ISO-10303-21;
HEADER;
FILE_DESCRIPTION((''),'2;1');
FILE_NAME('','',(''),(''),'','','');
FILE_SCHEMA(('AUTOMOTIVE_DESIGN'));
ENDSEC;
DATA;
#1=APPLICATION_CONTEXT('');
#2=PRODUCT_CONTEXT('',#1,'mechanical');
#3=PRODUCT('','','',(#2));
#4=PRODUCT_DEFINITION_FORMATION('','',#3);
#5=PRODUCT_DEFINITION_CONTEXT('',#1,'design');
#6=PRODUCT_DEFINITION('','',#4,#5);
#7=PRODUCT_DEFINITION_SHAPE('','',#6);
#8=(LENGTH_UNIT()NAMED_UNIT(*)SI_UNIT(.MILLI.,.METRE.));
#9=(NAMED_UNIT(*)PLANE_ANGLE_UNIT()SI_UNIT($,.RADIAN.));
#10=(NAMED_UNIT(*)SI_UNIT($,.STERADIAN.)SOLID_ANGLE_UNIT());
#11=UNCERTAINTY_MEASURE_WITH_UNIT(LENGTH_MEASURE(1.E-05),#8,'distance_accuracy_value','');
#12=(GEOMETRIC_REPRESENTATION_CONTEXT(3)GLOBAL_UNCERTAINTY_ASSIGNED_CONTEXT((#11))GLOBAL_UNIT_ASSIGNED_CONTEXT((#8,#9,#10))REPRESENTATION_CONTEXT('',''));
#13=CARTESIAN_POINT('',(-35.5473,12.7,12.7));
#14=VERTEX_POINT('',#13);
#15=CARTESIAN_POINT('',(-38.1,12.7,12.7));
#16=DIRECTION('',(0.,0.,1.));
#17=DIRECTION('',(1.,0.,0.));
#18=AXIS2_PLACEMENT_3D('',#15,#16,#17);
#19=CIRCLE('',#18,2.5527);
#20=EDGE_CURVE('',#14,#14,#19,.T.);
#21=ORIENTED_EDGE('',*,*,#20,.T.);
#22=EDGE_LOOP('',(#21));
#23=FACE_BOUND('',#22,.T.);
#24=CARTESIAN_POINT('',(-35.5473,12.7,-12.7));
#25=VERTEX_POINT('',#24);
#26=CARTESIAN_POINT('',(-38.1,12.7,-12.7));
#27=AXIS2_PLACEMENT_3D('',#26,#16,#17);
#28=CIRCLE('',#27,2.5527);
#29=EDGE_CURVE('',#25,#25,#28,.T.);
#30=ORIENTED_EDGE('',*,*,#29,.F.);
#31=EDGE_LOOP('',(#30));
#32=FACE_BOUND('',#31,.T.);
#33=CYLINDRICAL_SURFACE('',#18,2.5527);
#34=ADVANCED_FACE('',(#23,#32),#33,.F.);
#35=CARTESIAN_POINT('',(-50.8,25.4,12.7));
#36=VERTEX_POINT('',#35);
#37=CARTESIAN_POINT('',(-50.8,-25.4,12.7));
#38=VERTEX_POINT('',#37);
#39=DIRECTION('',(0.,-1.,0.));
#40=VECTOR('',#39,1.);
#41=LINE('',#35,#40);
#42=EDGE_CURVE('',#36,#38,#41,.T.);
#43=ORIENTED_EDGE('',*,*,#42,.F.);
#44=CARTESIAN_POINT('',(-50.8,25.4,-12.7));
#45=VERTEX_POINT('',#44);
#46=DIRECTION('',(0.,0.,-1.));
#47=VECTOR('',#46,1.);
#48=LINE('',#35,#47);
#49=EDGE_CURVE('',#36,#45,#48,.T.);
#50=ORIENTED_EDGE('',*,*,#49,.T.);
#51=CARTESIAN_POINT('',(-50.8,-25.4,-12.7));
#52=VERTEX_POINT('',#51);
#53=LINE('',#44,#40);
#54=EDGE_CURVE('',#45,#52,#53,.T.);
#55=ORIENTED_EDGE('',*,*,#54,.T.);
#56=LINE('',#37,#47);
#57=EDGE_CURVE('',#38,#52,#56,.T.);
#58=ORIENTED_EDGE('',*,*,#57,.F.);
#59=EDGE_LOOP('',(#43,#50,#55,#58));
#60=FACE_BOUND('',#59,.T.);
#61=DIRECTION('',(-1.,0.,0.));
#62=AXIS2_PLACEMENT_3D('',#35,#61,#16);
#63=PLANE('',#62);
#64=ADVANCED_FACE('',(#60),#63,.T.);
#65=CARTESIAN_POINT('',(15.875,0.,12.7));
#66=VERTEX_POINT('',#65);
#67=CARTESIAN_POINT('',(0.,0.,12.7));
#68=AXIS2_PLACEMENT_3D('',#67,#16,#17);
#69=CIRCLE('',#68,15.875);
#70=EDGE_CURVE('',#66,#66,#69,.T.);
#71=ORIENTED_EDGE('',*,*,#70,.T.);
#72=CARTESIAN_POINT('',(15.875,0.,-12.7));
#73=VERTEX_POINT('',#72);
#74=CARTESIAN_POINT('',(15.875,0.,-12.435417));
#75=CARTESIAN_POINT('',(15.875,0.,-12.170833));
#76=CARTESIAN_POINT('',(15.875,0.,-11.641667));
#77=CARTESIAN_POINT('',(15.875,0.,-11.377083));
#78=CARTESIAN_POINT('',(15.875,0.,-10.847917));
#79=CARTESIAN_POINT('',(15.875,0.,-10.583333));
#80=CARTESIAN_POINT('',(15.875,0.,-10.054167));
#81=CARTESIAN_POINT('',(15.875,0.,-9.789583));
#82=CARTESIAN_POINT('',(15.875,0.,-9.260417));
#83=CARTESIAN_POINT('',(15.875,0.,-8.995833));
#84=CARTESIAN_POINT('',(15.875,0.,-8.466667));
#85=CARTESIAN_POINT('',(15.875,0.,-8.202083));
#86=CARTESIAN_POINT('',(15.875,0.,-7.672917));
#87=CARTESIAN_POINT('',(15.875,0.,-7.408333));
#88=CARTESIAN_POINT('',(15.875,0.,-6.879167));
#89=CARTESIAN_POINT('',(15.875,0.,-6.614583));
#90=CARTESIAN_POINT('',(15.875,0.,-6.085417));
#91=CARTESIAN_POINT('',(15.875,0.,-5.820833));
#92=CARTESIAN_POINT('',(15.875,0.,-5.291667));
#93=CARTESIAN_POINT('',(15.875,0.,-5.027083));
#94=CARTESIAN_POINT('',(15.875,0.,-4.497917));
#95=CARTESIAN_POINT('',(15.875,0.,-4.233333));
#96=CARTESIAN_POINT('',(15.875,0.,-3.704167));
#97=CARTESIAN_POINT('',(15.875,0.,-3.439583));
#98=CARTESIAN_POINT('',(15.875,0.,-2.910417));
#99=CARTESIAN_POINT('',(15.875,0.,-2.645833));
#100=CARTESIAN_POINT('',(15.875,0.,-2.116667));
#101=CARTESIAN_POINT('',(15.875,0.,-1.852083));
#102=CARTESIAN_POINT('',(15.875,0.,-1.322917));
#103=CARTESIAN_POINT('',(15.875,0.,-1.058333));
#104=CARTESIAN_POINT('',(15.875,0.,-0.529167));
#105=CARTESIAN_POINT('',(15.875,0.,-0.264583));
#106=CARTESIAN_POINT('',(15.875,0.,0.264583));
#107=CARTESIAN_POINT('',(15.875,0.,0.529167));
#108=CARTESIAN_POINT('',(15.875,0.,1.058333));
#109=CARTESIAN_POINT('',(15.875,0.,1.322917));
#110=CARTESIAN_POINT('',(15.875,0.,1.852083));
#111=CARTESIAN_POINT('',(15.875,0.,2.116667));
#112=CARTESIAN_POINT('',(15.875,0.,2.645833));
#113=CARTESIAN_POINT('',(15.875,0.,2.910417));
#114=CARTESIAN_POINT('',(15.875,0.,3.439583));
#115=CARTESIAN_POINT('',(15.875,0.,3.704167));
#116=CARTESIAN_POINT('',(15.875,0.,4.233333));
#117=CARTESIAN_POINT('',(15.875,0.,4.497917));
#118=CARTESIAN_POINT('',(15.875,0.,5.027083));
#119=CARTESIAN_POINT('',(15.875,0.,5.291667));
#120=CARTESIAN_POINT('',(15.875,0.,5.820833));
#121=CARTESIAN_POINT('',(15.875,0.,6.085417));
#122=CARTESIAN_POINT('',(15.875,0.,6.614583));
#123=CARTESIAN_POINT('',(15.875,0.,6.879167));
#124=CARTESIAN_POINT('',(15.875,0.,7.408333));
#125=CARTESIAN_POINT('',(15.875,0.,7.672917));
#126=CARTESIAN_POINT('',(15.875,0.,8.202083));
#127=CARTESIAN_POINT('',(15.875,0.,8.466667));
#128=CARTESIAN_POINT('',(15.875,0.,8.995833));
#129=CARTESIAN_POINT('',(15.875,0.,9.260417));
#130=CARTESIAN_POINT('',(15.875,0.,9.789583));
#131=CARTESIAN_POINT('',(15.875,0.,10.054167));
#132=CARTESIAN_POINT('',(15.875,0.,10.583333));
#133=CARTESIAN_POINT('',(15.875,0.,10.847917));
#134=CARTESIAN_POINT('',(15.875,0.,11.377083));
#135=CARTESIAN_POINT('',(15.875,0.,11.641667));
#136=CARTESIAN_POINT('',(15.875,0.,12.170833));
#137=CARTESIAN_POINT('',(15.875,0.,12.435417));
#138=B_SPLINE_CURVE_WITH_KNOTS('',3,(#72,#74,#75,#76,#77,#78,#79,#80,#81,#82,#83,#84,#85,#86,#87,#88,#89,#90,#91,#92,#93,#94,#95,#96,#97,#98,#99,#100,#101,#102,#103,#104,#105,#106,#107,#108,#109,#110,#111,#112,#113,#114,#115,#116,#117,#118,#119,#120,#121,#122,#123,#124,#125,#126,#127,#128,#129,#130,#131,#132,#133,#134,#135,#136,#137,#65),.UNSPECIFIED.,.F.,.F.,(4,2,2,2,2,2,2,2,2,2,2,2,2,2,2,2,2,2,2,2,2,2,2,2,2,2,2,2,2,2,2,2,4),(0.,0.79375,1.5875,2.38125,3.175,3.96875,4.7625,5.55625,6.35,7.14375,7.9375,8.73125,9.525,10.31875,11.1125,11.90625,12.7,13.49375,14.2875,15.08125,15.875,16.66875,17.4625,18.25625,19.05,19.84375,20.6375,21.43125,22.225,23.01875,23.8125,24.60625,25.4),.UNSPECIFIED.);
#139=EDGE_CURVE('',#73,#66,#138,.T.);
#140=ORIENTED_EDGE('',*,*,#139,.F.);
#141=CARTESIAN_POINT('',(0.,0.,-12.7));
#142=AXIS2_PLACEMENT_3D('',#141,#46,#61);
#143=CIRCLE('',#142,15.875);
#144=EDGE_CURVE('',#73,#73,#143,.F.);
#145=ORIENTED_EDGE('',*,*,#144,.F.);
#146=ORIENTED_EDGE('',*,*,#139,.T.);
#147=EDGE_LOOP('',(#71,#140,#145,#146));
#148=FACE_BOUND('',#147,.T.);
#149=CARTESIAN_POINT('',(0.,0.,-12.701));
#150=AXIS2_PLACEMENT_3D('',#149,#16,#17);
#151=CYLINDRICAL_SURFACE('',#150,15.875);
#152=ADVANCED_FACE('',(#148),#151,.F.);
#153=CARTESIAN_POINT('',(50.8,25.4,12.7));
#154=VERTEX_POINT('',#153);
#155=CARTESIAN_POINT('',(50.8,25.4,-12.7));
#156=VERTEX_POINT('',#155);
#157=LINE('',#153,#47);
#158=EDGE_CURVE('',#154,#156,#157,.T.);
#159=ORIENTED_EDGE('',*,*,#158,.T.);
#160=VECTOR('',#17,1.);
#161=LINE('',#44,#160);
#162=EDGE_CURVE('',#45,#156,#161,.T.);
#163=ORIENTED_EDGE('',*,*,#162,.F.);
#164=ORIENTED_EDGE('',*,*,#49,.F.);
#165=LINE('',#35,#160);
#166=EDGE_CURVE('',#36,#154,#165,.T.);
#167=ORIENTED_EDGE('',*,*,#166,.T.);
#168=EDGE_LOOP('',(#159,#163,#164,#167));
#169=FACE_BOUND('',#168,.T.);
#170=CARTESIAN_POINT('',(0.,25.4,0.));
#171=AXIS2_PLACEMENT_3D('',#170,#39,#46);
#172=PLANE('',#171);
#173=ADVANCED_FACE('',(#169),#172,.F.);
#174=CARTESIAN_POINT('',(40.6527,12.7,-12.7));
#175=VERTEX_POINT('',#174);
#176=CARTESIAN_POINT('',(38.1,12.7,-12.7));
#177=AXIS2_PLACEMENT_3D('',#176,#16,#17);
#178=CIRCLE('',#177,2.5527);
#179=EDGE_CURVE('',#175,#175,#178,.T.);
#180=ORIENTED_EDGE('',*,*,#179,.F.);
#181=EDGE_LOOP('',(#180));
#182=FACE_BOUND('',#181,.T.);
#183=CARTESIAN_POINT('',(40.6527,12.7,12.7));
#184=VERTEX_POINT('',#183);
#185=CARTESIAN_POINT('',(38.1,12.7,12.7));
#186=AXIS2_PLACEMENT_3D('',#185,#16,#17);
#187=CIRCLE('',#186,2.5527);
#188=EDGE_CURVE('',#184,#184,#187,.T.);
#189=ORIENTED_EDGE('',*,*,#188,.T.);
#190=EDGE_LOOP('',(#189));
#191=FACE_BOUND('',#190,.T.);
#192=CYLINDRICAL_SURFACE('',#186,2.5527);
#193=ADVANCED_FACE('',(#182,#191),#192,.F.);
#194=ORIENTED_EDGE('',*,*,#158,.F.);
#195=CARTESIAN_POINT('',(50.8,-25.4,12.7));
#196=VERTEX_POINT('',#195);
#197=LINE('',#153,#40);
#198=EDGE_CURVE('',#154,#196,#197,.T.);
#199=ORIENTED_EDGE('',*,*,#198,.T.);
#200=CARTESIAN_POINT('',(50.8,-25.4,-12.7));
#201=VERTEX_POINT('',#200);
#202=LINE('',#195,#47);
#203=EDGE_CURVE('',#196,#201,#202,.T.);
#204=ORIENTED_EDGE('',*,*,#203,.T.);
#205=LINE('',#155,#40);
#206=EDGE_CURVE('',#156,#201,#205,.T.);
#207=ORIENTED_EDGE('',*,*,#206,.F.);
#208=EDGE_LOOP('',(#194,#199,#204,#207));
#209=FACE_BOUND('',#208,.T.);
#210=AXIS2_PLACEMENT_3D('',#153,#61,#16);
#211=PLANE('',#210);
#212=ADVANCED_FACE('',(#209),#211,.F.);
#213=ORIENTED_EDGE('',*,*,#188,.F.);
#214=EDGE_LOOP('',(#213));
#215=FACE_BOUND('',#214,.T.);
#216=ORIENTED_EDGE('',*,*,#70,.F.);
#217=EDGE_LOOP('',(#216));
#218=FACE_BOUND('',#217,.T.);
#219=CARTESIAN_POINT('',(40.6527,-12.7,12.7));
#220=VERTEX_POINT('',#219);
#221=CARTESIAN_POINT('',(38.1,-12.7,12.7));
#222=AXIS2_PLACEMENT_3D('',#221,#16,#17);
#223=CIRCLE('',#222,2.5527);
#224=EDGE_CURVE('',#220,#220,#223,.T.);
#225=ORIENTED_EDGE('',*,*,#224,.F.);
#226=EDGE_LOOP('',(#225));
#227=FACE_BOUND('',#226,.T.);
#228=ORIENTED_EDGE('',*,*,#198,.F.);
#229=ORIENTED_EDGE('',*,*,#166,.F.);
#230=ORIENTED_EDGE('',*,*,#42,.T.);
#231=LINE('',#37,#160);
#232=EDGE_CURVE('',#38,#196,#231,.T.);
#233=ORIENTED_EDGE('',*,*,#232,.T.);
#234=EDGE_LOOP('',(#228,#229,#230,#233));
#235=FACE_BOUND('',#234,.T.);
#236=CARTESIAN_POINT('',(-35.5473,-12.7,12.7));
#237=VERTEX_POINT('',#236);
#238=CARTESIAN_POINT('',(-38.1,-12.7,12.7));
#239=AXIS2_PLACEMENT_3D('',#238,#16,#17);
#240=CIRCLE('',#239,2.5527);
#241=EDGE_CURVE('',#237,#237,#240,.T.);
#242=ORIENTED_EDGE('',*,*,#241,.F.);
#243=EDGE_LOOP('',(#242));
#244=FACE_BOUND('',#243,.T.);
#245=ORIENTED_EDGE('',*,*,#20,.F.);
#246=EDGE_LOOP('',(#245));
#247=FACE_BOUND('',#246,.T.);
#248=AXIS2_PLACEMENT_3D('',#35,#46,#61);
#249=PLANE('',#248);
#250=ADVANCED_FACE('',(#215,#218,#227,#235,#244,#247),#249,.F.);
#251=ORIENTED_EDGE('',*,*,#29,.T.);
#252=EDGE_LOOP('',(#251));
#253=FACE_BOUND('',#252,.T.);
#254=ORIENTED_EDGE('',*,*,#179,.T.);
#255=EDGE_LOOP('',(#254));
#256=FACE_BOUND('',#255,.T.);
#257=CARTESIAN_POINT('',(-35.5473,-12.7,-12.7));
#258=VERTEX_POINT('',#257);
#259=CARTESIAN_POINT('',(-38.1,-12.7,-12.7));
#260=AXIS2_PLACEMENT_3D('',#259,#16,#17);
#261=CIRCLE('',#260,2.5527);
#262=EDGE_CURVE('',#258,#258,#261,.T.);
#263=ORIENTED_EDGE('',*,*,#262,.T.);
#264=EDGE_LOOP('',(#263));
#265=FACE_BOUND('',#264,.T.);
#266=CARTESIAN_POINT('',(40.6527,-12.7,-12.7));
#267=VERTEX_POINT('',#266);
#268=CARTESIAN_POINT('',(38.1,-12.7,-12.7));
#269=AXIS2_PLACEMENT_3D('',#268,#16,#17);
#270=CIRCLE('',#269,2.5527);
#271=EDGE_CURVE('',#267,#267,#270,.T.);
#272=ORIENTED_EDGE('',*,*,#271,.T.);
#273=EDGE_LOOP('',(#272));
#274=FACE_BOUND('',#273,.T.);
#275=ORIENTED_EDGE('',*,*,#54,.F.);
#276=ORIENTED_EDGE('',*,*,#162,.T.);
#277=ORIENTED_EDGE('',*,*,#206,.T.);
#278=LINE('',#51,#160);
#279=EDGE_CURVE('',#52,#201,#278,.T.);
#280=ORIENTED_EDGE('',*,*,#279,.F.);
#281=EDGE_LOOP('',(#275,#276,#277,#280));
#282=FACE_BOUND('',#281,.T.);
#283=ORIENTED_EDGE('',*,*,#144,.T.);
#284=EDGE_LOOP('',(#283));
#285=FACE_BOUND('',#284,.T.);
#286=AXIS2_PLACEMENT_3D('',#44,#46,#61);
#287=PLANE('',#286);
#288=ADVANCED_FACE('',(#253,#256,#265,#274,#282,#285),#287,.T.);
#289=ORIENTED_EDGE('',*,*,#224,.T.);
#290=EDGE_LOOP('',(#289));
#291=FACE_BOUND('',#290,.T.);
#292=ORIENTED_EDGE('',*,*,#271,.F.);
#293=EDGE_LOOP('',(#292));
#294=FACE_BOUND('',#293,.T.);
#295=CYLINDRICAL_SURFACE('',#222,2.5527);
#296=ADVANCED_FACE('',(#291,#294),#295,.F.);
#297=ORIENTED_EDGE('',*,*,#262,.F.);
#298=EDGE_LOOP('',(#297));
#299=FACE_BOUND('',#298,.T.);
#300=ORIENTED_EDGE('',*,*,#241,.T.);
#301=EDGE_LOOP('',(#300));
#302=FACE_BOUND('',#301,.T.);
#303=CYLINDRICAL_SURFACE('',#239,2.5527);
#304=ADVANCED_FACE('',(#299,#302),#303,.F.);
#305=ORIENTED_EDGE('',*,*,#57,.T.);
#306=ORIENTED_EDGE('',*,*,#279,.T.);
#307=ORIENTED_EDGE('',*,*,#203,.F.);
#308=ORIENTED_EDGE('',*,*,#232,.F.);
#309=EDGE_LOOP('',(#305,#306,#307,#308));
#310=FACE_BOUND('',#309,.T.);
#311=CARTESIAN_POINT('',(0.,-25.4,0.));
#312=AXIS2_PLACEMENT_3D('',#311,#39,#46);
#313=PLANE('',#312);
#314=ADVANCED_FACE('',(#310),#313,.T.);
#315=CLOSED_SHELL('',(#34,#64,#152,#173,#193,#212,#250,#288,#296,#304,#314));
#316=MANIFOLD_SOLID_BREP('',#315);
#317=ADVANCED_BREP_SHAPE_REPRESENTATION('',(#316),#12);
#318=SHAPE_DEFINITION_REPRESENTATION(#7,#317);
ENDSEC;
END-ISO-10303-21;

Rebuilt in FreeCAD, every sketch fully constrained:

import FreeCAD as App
import Part
import Sketcher
from FreeCAD import Vector
Q = App.Units.Quantity


def add_polygon(sketch, points):
    """Adds a closed chain of lines whose ends are joined by coincident constraints."""
    first, n = sketch.GeometryCount, len(points)
    for a, b in zip(points, points[1:] + points[:1]):
        sketch.addGeometry(Part.LineSegment(App.Vector(*a, 0), App.Vector(*b, 0)), False)
    for i in range(n):
        sketch.addConstraint(Sketcher.Constraint("Coincident", first + i, 2, first + (i + 1) % n, 1))

doc = App.newDocument("Part")
body = doc.addObject("PartDesign::Body", "Body")

sketch1 = doc.addObject("Sketcher::SketchObject", "Sketch")
body.addObject(sketch1)
sketch1.AttachmentSupport = (doc.XZ_Plane, [""])
sketch1.MapMode = "FlatFace"
add_polygon(sketch1, [(-51, -13), (-51, 13), (51, 13), (51, -13)])
sketch1.addConstraint(Sketcher.Constraint("Vertical", 0))
sketch1.addConstraint(Sketcher.Constraint("Horizontal", 1))
sketch1.addConstraint(Sketcher.Constraint("Vertical", 2))
sketch1.addConstraint(Sketcher.Constraint("Horizontal", 3))
sketch1.addConstraint(Sketcher.Constraint("Symmetric", 0, 2, 2, 2, -1, 1))
sketch1.addConstraint(Sketcher.Constraint("DistanceX", 1, 1, 1, 2, Q("4 in")))
sketch1.addConstraint(Sketcher.Constraint("DistanceY", 0, 1, 0, 2, Q("1 in")))
pad1 = doc.addObject("PartDesign::Pad", "Pad")
body.addObject(pad1)
pad1.Profile = sketch1
pad1.Length = Q("2 in")
pad1.Midplane = True

sketch2 = doc.addObject("Sketcher::SketchObject", "Sketch001")
body.addObject(sketch2)
sketch2.AttachmentSupport = (doc.XY_Plane, [""])
sketch2.MapMode = "FlatFace"
sketch2.AttachmentOffset = App.Placement(Vector(0, 0, 0.5 * 25.4), App.Rotation())
sketch2.addGeometry(Part.Circle(Vector(0, 0, 0), Vector(0, 0, 1), 16), False)
sketch2.addConstraint(Sketcher.Constraint("Coincident", 0, 3, -1, 1))
sketch2.addConstraint(Sketcher.Constraint("Diameter", 0, Q("1.25 in")))
pocket1 = doc.addObject("PartDesign::Pocket", "Pocket")
body.addObject(pocket1)
pocket1.Profile = sketch2
pocket1.Type = "UpToFirst"

sketch3 = doc.addObject("Sketcher::SketchObject", "Sketch002")
body.addObject(sketch3)
sketch3.AttachmentSupport = (doc.XY_Plane, [""])
sketch3.MapMode = "FlatFace"
sketch3.AttachmentOffset = App.Placement(Vector(0, 0, 0.5 * 25.4), App.Rotation())
sketch3.addGeometry(Part.Circle(Vector(-38.1, 12.7, 0), Vector(0, 0, 1), 2.6), False)
sketch3.addGeometry(Part.Circle(Vector(-38.1, -12.7, 0), Vector(0, 0, 1), 2.6), False)
sketch3.addGeometry(Part.Circle(Vector(38.1, 12.7, 0), Vector(0, 0, 1), 2.6), False)
sketch3.addGeometry(Part.Circle(Vector(38.1, -12.7, 0), Vector(0, 0, 1), 2.6), False)
sketch3.addConstraint(Sketcher.Constraint("Equal", 0, 1))
sketch3.addConstraint(Sketcher.Constraint("Equal", 1, 2))
sketch3.addConstraint(Sketcher.Constraint("Equal", 2, 3))
sketch3.addConstraint(Sketcher.Constraint("Symmetric", 1, 3, 2, 3, -1, 1))
sketch3.addConstraint(Sketcher.Constraint("Symmetric", 0, 3, 3, 3, -1, 1))
sketch3.addConstraint(Sketcher.Constraint("Symmetric", 0, 3, 2, 3, -2))
sketch3.addConstraint(Sketcher.Constraint("Diameter", 0, Q("0.201 in")))
sketch3.addConstraint(Sketcher.Constraint("DistanceY", 1, 3, 0, 3, Q("1 in")))
sketch3.addConstraint(Sketcher.Constraint("DistanceX", 0, 3, 2, 3, Q("3 in")))
doc.recompute()
hole = doc.addObject("PartDesign::Hole", "Hole")
body.addObject(hole)
hole.Profile = sketch3
hole.ThreadType = "None"
hole.Diameter = Q("0.201 in")
hole.DepthType = "ThroughAll"

doc.recompute()
